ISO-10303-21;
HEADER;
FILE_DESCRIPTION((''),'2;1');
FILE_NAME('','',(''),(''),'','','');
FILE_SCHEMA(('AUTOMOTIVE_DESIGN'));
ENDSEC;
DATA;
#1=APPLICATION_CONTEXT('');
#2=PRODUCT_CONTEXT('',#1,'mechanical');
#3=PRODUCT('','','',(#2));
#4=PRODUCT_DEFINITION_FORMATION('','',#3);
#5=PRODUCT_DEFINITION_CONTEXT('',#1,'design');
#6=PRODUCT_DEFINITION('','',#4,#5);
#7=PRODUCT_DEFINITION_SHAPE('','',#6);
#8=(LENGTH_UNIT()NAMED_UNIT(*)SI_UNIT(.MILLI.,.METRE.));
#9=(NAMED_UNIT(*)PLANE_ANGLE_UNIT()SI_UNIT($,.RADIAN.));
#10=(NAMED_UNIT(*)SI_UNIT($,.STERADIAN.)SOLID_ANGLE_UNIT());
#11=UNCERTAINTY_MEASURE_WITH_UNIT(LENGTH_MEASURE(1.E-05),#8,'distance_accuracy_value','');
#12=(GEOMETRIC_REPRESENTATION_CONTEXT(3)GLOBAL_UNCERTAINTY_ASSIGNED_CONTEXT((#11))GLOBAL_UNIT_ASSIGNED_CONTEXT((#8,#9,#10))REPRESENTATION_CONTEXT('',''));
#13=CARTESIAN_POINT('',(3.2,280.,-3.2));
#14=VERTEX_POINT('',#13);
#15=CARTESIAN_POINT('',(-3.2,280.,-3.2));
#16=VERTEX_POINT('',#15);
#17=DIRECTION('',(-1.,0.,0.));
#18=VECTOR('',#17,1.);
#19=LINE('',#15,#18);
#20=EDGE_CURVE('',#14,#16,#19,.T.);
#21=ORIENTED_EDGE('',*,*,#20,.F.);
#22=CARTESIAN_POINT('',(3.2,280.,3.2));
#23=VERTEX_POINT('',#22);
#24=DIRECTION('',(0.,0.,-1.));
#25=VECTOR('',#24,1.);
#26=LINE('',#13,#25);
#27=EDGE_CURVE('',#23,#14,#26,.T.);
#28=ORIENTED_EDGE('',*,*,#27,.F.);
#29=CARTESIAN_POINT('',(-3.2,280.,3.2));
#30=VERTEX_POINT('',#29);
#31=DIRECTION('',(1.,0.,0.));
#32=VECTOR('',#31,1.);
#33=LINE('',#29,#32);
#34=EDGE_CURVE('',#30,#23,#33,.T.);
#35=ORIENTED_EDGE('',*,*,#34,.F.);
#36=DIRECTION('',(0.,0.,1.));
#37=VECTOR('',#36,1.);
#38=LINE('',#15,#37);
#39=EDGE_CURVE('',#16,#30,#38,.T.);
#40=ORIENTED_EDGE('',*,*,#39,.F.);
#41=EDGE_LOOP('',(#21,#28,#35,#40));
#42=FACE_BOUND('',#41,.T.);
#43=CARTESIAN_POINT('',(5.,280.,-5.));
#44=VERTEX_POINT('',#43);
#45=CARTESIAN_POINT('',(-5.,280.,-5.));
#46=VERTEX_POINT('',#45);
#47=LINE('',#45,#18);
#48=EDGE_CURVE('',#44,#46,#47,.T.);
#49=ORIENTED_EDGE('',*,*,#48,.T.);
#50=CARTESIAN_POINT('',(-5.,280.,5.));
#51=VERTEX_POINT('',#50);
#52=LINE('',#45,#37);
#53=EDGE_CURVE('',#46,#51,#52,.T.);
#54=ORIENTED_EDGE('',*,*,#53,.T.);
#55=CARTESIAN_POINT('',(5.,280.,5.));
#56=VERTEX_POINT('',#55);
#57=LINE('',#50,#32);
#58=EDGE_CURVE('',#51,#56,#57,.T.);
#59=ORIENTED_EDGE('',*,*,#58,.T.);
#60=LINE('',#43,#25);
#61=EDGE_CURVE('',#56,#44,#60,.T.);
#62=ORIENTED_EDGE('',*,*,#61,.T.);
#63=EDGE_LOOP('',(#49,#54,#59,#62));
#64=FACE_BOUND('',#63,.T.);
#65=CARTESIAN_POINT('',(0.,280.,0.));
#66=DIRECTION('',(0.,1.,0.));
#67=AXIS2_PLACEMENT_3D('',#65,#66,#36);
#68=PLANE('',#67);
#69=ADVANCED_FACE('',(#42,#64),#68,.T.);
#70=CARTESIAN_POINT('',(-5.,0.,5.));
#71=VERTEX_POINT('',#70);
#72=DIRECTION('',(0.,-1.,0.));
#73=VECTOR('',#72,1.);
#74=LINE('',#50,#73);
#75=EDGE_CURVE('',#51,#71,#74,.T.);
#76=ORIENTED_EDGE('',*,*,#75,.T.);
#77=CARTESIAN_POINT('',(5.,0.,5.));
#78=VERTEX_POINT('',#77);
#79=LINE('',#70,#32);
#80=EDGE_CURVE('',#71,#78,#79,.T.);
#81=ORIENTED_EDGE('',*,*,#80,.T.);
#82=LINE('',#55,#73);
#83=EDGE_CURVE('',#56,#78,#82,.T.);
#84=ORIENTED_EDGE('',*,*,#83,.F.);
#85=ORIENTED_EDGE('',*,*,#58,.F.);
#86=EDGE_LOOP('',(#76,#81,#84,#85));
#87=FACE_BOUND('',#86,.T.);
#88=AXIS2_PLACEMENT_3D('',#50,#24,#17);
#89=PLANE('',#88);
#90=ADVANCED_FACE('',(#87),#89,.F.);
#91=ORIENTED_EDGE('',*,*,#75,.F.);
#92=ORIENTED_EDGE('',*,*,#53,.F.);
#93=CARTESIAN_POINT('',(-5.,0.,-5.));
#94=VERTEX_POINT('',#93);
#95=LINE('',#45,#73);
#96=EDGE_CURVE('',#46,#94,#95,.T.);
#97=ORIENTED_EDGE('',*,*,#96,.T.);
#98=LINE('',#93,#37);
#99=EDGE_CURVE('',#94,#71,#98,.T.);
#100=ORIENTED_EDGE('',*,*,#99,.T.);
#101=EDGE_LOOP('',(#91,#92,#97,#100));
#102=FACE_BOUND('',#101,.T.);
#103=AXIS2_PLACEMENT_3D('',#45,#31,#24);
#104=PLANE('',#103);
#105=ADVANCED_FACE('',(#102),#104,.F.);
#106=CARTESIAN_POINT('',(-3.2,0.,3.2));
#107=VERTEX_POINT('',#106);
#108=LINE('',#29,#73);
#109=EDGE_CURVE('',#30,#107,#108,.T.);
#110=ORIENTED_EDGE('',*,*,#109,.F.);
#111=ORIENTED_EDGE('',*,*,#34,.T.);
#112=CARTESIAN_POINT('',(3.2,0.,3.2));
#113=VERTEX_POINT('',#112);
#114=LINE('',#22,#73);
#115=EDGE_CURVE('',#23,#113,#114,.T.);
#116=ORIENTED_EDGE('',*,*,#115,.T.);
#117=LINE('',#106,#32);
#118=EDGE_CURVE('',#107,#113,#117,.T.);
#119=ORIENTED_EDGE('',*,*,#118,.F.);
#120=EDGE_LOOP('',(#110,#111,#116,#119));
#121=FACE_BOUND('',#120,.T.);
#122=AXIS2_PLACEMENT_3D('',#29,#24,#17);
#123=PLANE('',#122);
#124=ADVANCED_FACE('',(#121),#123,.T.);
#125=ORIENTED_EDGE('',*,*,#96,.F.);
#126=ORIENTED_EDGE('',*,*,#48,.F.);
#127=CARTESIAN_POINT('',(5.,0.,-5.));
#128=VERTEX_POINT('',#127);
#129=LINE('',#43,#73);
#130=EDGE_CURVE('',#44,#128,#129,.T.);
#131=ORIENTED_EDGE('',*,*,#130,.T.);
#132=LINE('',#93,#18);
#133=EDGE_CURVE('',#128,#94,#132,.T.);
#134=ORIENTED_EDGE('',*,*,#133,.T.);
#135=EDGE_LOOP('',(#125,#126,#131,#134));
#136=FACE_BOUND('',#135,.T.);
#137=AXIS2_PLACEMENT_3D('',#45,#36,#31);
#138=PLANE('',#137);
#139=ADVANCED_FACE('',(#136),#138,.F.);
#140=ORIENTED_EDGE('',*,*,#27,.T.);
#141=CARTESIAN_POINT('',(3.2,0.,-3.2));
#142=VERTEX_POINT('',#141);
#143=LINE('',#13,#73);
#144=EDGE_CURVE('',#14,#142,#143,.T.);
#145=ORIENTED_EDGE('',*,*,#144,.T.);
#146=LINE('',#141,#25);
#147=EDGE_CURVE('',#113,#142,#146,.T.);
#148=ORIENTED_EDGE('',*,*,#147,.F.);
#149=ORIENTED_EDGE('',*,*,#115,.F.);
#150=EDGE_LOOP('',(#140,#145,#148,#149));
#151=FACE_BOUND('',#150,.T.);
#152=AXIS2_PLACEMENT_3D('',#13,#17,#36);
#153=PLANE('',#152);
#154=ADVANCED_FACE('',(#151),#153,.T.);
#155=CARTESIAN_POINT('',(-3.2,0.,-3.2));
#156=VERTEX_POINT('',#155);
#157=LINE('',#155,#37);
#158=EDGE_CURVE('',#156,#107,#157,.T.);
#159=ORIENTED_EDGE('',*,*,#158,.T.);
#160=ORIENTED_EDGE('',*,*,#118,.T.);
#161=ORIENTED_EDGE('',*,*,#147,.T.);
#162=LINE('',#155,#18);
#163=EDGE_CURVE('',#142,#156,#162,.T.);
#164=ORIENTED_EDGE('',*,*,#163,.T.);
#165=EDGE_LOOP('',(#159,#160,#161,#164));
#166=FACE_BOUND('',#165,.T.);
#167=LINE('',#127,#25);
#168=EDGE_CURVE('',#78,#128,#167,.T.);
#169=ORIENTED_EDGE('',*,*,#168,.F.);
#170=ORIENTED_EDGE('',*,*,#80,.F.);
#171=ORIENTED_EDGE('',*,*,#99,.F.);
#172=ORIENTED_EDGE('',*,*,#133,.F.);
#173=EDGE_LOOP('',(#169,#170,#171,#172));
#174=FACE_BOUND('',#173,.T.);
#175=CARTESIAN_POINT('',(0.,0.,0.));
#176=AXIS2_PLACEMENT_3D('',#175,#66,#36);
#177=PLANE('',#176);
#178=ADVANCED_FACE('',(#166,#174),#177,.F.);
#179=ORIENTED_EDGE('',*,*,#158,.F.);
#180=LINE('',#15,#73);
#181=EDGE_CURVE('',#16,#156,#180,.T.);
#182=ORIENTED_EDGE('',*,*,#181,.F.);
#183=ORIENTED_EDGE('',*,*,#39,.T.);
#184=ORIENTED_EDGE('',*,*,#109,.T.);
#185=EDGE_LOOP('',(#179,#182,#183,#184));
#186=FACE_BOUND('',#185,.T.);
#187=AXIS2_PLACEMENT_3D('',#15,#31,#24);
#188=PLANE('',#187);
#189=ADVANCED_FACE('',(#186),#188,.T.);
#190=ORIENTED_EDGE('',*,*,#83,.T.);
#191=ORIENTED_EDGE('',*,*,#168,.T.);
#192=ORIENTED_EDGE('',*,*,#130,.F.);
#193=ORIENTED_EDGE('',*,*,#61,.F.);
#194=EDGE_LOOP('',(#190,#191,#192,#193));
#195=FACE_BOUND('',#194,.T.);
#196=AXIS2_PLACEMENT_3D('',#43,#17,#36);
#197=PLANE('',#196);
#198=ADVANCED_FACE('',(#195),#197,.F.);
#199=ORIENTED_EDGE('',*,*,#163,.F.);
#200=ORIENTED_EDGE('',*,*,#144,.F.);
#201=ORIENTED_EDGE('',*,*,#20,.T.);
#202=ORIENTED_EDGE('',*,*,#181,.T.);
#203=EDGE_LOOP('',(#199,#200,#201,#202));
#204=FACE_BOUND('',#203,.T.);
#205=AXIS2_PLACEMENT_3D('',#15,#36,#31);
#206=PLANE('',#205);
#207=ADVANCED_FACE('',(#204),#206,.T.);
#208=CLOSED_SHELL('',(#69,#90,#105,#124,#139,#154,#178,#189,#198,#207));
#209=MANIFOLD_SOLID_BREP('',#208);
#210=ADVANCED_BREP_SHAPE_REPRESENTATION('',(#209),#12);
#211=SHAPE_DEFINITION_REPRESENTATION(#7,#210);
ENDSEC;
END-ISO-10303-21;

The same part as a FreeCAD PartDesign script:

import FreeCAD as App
import Part
import Sketcher
from FreeCAD import Vector


def add_polygon(sketch, points):
    """Adds a closed chain of lines whose ends are joined by coincident constraints."""
    first, n = sketch.GeometryCount, len(points)
    for a, b in zip(points, points[1:] + points[:1]):
        sketch.addGeometry(Part.LineSegment(App.Vector(*a, 0), App.Vector(*b, 0)), False)
    for i in range(n):
        sketch.addConstraint(Sketcher.Constraint("Coincident", first + i, 2, first + (i + 1) % n, 1))

doc = App.newDocument("Part")
body = doc.addObject("PartDesign::Body", "Body")

sketch1 = body.newObject("Sketcher::SketchObject", "Sketch")
sketch1.AttachmentSupport = (doc.getObject("XZ_Plane"), [""])
sketch1.MapMode = "FlatFace"
add_polygon(sketch1, [(-5, -5), (-5, 5), (5, 5), (5, -5)])
add_polygon(sketch1, [(3, 3), (-3, 3), (-3, -3), (3, -3)])
sketch1.addConstraint([
    Sketcher.Constraint("Vertical", 0),
    Sketcher.Constraint("Horizontal", 1),
    Sketcher.Constraint("Vertical", 2),
    Sketcher.Constraint("Horizontal", 3),
    Sketcher.Constraint("Horizontal", 4),
    Sketcher.Constraint("Vertical", 5),
    Sketcher.Constraint("Horizontal", 6),
    Sketcher.Constraint("Vertical", 7),
    Sketcher.Constraint("Symmetric", 0, 2, 2, 2, -1, 1),
    Sketcher.Constraint("Symmetric", 4, 2, 6, 2, -1, 1),
    Sketcher.Constraint("Equal", 3, 0),
    Sketcher.Constraint("Equal", 6, 5),
    Sketcher.Constraint("DistanceX", 1, 1, 1, 2, 10.0),
    Sketcher.Constraint("DistanceX", 4, 2, 4, 1, 6.4),
])
pad1 = body.newObject("PartDesign::Pad", "Pad")
pad1.Profile = sketch1
pad1.Length = 280
pad1.Reversed = True

doc.recompute()
